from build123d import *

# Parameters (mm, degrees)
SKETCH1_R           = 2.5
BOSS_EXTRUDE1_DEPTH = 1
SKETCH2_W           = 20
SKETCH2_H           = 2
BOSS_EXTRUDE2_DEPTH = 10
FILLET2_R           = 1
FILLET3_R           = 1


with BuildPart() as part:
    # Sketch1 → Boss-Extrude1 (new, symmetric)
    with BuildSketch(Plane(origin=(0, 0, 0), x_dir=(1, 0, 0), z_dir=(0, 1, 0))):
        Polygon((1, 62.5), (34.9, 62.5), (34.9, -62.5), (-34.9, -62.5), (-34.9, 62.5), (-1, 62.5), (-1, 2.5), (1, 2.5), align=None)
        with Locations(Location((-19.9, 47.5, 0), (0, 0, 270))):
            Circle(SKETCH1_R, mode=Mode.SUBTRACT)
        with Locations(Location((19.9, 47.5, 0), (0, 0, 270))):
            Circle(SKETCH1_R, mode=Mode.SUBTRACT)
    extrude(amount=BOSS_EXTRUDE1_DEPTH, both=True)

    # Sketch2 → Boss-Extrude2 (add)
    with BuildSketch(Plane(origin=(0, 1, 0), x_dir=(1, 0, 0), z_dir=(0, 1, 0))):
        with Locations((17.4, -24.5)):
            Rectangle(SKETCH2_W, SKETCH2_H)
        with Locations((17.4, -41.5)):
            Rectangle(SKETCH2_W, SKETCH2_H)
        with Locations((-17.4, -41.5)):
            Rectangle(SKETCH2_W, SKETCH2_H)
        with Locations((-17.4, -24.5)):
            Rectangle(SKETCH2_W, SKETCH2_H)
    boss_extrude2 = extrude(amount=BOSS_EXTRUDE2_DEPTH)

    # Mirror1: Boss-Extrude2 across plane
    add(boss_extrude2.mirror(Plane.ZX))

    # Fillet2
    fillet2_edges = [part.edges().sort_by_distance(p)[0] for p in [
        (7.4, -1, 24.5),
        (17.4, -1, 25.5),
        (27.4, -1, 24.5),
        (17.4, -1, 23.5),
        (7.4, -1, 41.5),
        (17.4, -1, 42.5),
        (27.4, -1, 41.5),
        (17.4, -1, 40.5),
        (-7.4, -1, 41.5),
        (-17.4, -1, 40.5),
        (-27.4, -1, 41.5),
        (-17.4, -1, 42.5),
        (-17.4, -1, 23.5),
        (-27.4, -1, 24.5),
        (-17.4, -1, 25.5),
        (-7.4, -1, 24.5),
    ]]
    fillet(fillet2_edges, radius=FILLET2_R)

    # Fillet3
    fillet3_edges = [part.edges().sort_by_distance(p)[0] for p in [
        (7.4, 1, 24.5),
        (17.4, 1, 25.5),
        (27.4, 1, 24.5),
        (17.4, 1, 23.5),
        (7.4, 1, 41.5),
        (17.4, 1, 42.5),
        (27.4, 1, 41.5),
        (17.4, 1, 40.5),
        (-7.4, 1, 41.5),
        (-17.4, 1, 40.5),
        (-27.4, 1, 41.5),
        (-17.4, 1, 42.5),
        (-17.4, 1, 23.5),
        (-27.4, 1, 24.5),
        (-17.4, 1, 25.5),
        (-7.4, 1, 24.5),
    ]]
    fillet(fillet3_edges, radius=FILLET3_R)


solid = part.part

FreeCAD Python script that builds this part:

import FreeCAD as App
import Part
import Sketcher
from FreeCAD import Vector
Q = App.Units.Quantity


def edges_at(feature, points):
    """Names of the edges that pass closest to the given points."""
    edges = feature.Shape.Edges
    near = lambda p: min(range(len(edges)), key=lambda i: edges[i].distToShape(Part.Vertex(*p))[0])
    return sorted({f"Edge{near(p) + 1}" for p in points})

doc = App.newDocument("Part")
body = doc.addObject("PartDesign::Body", "Body")

# Sketch on XZ plane
sketch1 = body.newObject("Sketcher::SketchObject", "Sketch")
sketch1.AttachmentSupport = (doc.getObject("XZ_Plane"), [""])
sketch1.MapMode = "FlatFace"
sketch1.addGeometry(Part.LineSegment(Vector(34.9, -62.5, 0), Vector(1, -62.5, 0)), False)
sketch1.addGeometry(Part.LineSegment(Vector(1, -62.5, 0), Vector(1, -2.5, 0)), False)
sketch1.addGeometry(Part.LineSegment(Vector(1, -2.5, 0), Vector(-1, -2.5, 0)), False)
sketch1.addGeometry(Part.LineSegment(Vector(-1, -2.5, 0), Vector(-1, -62.5, 0)), False)
sketch1.addGeometry(Part.LineSegment(Vector(-1, -62.5, 0), Vector(-34.9, -62.5, 0)), False)
sketch1.addGeometry(Part.LineSegment(Vector(-34.9, -62.5, 0), Vector(-34.9, 62.5, 0)), False)
sketch1.addGeometry(Part.LineSegment(Vector(-34.9, 62.5, 0), Vector(34.9, 62.5, 0)), False)
sketch1.addGeometry(Part.LineSegment(Vector(34.9, 62.5, 0), Vector(34.9, -62.5, 0)), False)
sketch1.addGeometry(Part.Circle(Vector(19.9, -47.5, 0), Vector(0, 0, 1), 2.5), False)
sketch1.addGeometry(Part.Circle(Vector(-19.9, -47.5, 0), Vector(0, 0, 1), 2.5), False)
sketch1.addConstraint(Sketcher.Constraint("Coincident", 0, 2, 1, 1))
sketch1.addConstraint(Sketcher.Constraint("Coincident", 1, 2, 2, 1))
sketch1.addConstraint(Sketcher.Constraint("Coincident", 2, 2, 3, 1))
sketch1.addConstraint(Sketcher.Constraint("Coincident", 3, 2, 4, 1))
sketch1.addConstraint(Sketcher.Constraint("Coincident", 4, 2, 5, 1))
sketch1.addConstraint(Sketcher.Constraint("Coincident", 5, 2, 6, 1))
sketch1.addConstraint(Sketcher.Constraint("Coincident", 6, 2, 7, 1))
sketch1.addConstraint(Sketcher.Constraint("Coincident", 7, 2, 0, 1))
sketch1.addConstraint(Sketcher.Constraint("Horizontal", 0))
sketch1.addConstraint(Sketcher.Constraint("Vertical", 1))
sketch1.addConstraint(Sketcher.Constraint("Horizontal", 2))
sketch1.addConstraint(Sketcher.Constraint("Vertical", 3))
sketch1.addConstraint(Sketcher.Constraint("Horizontal", 4))
sketch1.addConstraint(Sketcher.Constraint("Vertical", 5))
sketch1.addConstraint(Sketcher.Constraint("Horizontal", 6))
sketch1.addConstraint(Sketcher.Constraint("Vertical", 7))
sketch1.addConstraint(Sketcher.Constraint("Equal", 8, 9))
sketch1.addConstraint(Sketcher.Constraint("Symmetric", 4, 2, 6, 2, -1, 1))
sketch1.addConstraint(Sketcher.Constraint("Symmetric", 8, 3, 9, 3, -2))
sketch1.addConstraint(Sketcher.Constraint("Symmetric", 0, 2, 3, 2, -2))
sketch1.addConstraint(Sketcher.Constraint("Diameter", 8, Q("5 mm")))
sketch1.addConstraint(Sketcher.Constraint("DistanceX", 2, 2, 2, 1, Q("2 mm")))
sketch1.addConstraint(Sketcher.Constraint("DistanceY", 1, 1, 1, 2, Q("60 mm")))
sketch1.addConstraint(Sketcher.Constraint("DistanceY", 5, 1, 5, 2, Q("125 mm")))
sketch1.addConstraint(Sketcher.Constraint("DistanceX", 0, 2, 0, 1, Q("33.9 mm")))
sketch1.addConstraint(Sketcher.Constraint("DistanceY", 0, 2, 8, 3, Q("15 mm")))
sketch1.addConstraint(Sketcher.Constraint("DistanceX", 4, 2, 9, 3, Q("15 mm")))
pad1 = body.newObject("PartDesign::Pad", "Pad")
pad1.Profile = sketch1
pad1.Length = 2
pad1.Midplane = True

# Sketch on XZ plane
sketch2 = body.newObject("Sketcher::SketchObject", "Sketch001")
sketch2.AttachmentSupport = (doc.getObject("XZ_Plane"), [""])
sketch2.MapMode = "FlatFace"
sketch2.AttachmentOffset = App.Placement(Vector(0, 0, -1), App.Rotation())
sketch2.addGeometry(Part.LineSegment(Vector(7.4, 23.5, 0), Vector(7.4, 25.5, 0)), False)
sketch2.addGeometry(Part.LineSegment(Vector(7.4, 25.5, 0), Vector(27.4, 25.5, 0)), False)
sketch2.addGeometry(Part.LineSegment(Vector(27.4, 25.5, 0), Vector(27.4, 23.5, 0)), False)
sketch2.addGeometry(Part.LineSegment(Vector(27.4, 23.5, 0), Vector(7.4, 23.5, 0)), False)
sketch2.addGeometry(Part.LineSegment(Vector(7.4, 40.5, 0), Vector(7.4, 42.5, 0)), False)
sketch2.addGeometry(Part.LineSegment(Vector(7.4, 42.5, 0), Vector(27.4, 42.5, 0)), False)
sketch2.addGeometry(Part.LineSegment(Vector(27.4, 42.5, 0), Vector(27.4, 40.5, 0)), False)
sketch2.addGeometry(Part.LineSegment(Vector(27.4, 40.5, 0), Vector(7.4, 40.5, 0)), False)
sketch2.addGeometry(Part.LineSegment(Vector(-27.4, 40.5, 0), Vector(-27.4, 42.5, 0)), False)
sketch2.addGeometry(Part.LineSegment(Vector(-27.4, 42.5, 0), Vector(-7.4, 42.5, 0)), False)
sketch2.addGeometry(Part.LineSegment(Vector(-7.4, 42.5, 0), Vector(-7.4, 40.5, 0)), False)
sketch2.addGeometry(Part.LineSegment(Vector(-7.4, 40.5, 0), Vector(-27.4, 40.5, 0)), False)
sketch2.addGeometry(Part.LineSegment(Vector(-27.4, 23.5, 0), Vector(-27.4, 25.5, 0)), False)
sketch2.addGeometry(Part.LineSegment(Vector(-27.4, 25.5, 0), Vector(-7.4, 25.5, 0)), False)
sketch2.addGeometry(Part.LineSegment(Vector(-7.4, 25.5, 0), Vector(-7.4, 23.5, 0)), False)
sketch2.addGeometry(Part.LineSegment(Vector(-7.4, 23.5, 0), Vector(-27.4, 23.5, 0)), False)
sketch2.addConstraint(Sketcher.Constraint("Coincident", 0, 2, 1, 1))
sketch2.addConstraint(Sketcher.Constraint("Coincident", 1, 2, 2, 1))
sketch2.addConstraint(Sketcher.Constraint("Coincident", 2, 2, 3, 1))
sketch2.addConstraint(Sketcher.Constraint("Coincident", 3, 2, 0, 1))
sketch2.addConstraint(Sketcher.Constraint("Coincident", 4, 2, 5, 1))
sketch2.addConstraint(Sketcher.Constraint("Coincident", 5, 2, 6, 1))
sketch2.addConstraint(Sketcher.Constraint("Coincident", 6, 2, 7, 1))
sketch2.addConstraint(Sketcher.Constraint("Coincident", 7, 2, 4, 1))
sketch2.addConstraint(Sketcher.Constraint("Coincident", 8, 2, 9, 1))
sketch2.addConstraint(Sketcher.Constraint("Coincident", 9, 2, 10, 1))
sketch2.addConstraint(Sketcher.Constraint("Coincident", 10, 2, 11, 1))
sketch2.addConstraint(Sketcher.Constraint("Coincident", 11, 2, 8, 1))
sketch2.addConstraint(Sketcher.Constraint("Coincident", 12, 2, 13, 1))
sketch2.addConstraint(Sketcher.Constraint("Coincident", 13, 2, 14, 1))
sketch2.addConstraint(Sketcher.Constraint("Coincident", 14, 2, 15, 1))
sketch2.addConstraint(Sketcher.Constraint("Coincident", 15, 2, 12, 1))
sketch2.addConstraint(Sketcher.Constraint("Vertical", 0))
sketch2.addConstraint(Sketcher.Constraint("Horizontal", 1))
sketch2.addConstraint(Sketcher.Constraint("Vertical", 2))
sketch2.addConstraint(Sketcher.Constraint("Horizontal", 3))
sketch2.addConstraint(Sketcher.Constraint("Vertical", 4))
sketch2.addConstraint(Sketcher.Constraint("Horizontal", 5))
sketch2.addConstraint(Sketcher.Constraint("Vertical", 6))
sketch2.addConstraint(Sketcher.Constraint("Horizontal", 7))
sketch2.addConstraint(Sketcher.Constraint("Vertical", 8))
sketch2.addConstraint(Sketcher.Constraint("Horizontal", 9))
sketch2.addConstraint(Sketcher.Constraint("Vertical", 10))
sketch2.addConstraint(Sketcher.Constraint("Horizontal", 11))
sketch2.addConstraint(Sketcher.Constraint("Vertical", 12))
sketch2.addConstraint(Sketcher.Constraint("Horizontal", 13))
sketch2.addConstraint(Sketcher.Constraint("Vertical", 14))
sketch2.addConstraint(Sketcher.Constraint("Horizontal", 15))
sketch2.addConstraint(Sketcher.Constraint("Symmetric", 5, 2, 8, 2, -2))
sketch2.addConstraint(Sketcher.Constraint("Symmetric", 7, 2, 10, 2, -2))
sketch2.addConstraint(Sketcher.Constraint("Symmetric", 1, 2, 12, 2, -2))
sketch2.addConstraint(Sketcher.Constraint("Symmetric", 3, 2, 14, 2, -2))
sketch2.addConstraint(Sketcher.Constraint("Vertical", 3, 2, 4, 2))
sketch2.addConstraint(Sketcher.Constraint("Vertical", 2, 2, 5, 2))
sketch2.addConstraint(Sketcher.Constraint("Equal", 2, 4))
sketch2.addConstraint(Sketcher.Constraint("DistanceX", 1, 1, 1, 2, Q("20 mm")))
sketch2.addConstraint(Sketcher.Constraint("DistanceY", 0, 1, 0, 2, Q("2 mm")))
sketch2.addConstraint(Sketcher.Constraint("DistanceY", 0, 2, 4, 2, Q("17 mm")))
sketch2.addConstraint(Sketcher.Constraint("DistanceX", -1, 1, 0, 2, Q("7.4 mm")))
sketch2.addConstraint(Sketcher.Constraint("DistanceY", -1, 1, 0, 2, Q("25.5 mm")))
pad2 = body.newObject("PartDesign::Pad", "Pad001")
pad2.Profile = sketch2
pad2.Length = 10
pad2.Reversed = True
doc.recompute()

mirrored = body.newObject("PartDesign::Mirrored", "Mirrored")
mirrored.Originals = [pad2]
mirrored.MirrorPlane = (doc.getObject("XZ_Plane"), [""])
body.Tip = mirrored
doc.recompute()

fillet = body.newObject("PartDesign::Fillet", "Fillet")
fillet.Base = (mirrored, edges_at(mirrored, [
    (7.4, -1, 24.5),
    (17.4, -1, 25.5),
    (27.4, -1, 24.5),
    (17.4, -1, 23.5),
    (7.4, -1, 41.5),
    (17.4, -1, 42.5),
    (27.4, -1, 41.5),
    (17.4, -1, 40.5),
    (-7.4, -1, 41.5),
    (-17.4, -1, 40.5),
    (-27.4, -1, 41.5),
    (-17.4, -1, 42.5),
    (-17.4, -1, 23.5),
    (-27.4, -1, 24.5),
    (-17.4, -1, 25.5),
    (-7.4, -1, 24.5),
]))
fillet.Radius = 1
doc.recompute()

fillet2 = body.newObject("PartDesign::Fillet", "Fillet001")
fillet2.Base = (fillet, edges_at(fillet, [
    (7.4, 1, 24.5),
    (17.4, 1, 25.5),
    (27.4, 1, 24.5),
    (17.4, 1, 23.5),
    (7.4, 1, 41.5),
    (17.4, 1, 42.5),
    (27.4, 1, 41.5),
    (17.4, 1, 40.5),
    (-7.4, 1, 41.5),
    (-17.4, 1, 40.5),
    (-27.4, 1, 41.5),
    (-17.4, 1, 42.5),
    (-17.4, 1, 23.5),
    (-27.4, 1, 24.5),
    (-17.4, 1, 25.5),
    (-7.4, 1, 24.5),
]))
fillet2.Radius = 1

doc.recompute()
